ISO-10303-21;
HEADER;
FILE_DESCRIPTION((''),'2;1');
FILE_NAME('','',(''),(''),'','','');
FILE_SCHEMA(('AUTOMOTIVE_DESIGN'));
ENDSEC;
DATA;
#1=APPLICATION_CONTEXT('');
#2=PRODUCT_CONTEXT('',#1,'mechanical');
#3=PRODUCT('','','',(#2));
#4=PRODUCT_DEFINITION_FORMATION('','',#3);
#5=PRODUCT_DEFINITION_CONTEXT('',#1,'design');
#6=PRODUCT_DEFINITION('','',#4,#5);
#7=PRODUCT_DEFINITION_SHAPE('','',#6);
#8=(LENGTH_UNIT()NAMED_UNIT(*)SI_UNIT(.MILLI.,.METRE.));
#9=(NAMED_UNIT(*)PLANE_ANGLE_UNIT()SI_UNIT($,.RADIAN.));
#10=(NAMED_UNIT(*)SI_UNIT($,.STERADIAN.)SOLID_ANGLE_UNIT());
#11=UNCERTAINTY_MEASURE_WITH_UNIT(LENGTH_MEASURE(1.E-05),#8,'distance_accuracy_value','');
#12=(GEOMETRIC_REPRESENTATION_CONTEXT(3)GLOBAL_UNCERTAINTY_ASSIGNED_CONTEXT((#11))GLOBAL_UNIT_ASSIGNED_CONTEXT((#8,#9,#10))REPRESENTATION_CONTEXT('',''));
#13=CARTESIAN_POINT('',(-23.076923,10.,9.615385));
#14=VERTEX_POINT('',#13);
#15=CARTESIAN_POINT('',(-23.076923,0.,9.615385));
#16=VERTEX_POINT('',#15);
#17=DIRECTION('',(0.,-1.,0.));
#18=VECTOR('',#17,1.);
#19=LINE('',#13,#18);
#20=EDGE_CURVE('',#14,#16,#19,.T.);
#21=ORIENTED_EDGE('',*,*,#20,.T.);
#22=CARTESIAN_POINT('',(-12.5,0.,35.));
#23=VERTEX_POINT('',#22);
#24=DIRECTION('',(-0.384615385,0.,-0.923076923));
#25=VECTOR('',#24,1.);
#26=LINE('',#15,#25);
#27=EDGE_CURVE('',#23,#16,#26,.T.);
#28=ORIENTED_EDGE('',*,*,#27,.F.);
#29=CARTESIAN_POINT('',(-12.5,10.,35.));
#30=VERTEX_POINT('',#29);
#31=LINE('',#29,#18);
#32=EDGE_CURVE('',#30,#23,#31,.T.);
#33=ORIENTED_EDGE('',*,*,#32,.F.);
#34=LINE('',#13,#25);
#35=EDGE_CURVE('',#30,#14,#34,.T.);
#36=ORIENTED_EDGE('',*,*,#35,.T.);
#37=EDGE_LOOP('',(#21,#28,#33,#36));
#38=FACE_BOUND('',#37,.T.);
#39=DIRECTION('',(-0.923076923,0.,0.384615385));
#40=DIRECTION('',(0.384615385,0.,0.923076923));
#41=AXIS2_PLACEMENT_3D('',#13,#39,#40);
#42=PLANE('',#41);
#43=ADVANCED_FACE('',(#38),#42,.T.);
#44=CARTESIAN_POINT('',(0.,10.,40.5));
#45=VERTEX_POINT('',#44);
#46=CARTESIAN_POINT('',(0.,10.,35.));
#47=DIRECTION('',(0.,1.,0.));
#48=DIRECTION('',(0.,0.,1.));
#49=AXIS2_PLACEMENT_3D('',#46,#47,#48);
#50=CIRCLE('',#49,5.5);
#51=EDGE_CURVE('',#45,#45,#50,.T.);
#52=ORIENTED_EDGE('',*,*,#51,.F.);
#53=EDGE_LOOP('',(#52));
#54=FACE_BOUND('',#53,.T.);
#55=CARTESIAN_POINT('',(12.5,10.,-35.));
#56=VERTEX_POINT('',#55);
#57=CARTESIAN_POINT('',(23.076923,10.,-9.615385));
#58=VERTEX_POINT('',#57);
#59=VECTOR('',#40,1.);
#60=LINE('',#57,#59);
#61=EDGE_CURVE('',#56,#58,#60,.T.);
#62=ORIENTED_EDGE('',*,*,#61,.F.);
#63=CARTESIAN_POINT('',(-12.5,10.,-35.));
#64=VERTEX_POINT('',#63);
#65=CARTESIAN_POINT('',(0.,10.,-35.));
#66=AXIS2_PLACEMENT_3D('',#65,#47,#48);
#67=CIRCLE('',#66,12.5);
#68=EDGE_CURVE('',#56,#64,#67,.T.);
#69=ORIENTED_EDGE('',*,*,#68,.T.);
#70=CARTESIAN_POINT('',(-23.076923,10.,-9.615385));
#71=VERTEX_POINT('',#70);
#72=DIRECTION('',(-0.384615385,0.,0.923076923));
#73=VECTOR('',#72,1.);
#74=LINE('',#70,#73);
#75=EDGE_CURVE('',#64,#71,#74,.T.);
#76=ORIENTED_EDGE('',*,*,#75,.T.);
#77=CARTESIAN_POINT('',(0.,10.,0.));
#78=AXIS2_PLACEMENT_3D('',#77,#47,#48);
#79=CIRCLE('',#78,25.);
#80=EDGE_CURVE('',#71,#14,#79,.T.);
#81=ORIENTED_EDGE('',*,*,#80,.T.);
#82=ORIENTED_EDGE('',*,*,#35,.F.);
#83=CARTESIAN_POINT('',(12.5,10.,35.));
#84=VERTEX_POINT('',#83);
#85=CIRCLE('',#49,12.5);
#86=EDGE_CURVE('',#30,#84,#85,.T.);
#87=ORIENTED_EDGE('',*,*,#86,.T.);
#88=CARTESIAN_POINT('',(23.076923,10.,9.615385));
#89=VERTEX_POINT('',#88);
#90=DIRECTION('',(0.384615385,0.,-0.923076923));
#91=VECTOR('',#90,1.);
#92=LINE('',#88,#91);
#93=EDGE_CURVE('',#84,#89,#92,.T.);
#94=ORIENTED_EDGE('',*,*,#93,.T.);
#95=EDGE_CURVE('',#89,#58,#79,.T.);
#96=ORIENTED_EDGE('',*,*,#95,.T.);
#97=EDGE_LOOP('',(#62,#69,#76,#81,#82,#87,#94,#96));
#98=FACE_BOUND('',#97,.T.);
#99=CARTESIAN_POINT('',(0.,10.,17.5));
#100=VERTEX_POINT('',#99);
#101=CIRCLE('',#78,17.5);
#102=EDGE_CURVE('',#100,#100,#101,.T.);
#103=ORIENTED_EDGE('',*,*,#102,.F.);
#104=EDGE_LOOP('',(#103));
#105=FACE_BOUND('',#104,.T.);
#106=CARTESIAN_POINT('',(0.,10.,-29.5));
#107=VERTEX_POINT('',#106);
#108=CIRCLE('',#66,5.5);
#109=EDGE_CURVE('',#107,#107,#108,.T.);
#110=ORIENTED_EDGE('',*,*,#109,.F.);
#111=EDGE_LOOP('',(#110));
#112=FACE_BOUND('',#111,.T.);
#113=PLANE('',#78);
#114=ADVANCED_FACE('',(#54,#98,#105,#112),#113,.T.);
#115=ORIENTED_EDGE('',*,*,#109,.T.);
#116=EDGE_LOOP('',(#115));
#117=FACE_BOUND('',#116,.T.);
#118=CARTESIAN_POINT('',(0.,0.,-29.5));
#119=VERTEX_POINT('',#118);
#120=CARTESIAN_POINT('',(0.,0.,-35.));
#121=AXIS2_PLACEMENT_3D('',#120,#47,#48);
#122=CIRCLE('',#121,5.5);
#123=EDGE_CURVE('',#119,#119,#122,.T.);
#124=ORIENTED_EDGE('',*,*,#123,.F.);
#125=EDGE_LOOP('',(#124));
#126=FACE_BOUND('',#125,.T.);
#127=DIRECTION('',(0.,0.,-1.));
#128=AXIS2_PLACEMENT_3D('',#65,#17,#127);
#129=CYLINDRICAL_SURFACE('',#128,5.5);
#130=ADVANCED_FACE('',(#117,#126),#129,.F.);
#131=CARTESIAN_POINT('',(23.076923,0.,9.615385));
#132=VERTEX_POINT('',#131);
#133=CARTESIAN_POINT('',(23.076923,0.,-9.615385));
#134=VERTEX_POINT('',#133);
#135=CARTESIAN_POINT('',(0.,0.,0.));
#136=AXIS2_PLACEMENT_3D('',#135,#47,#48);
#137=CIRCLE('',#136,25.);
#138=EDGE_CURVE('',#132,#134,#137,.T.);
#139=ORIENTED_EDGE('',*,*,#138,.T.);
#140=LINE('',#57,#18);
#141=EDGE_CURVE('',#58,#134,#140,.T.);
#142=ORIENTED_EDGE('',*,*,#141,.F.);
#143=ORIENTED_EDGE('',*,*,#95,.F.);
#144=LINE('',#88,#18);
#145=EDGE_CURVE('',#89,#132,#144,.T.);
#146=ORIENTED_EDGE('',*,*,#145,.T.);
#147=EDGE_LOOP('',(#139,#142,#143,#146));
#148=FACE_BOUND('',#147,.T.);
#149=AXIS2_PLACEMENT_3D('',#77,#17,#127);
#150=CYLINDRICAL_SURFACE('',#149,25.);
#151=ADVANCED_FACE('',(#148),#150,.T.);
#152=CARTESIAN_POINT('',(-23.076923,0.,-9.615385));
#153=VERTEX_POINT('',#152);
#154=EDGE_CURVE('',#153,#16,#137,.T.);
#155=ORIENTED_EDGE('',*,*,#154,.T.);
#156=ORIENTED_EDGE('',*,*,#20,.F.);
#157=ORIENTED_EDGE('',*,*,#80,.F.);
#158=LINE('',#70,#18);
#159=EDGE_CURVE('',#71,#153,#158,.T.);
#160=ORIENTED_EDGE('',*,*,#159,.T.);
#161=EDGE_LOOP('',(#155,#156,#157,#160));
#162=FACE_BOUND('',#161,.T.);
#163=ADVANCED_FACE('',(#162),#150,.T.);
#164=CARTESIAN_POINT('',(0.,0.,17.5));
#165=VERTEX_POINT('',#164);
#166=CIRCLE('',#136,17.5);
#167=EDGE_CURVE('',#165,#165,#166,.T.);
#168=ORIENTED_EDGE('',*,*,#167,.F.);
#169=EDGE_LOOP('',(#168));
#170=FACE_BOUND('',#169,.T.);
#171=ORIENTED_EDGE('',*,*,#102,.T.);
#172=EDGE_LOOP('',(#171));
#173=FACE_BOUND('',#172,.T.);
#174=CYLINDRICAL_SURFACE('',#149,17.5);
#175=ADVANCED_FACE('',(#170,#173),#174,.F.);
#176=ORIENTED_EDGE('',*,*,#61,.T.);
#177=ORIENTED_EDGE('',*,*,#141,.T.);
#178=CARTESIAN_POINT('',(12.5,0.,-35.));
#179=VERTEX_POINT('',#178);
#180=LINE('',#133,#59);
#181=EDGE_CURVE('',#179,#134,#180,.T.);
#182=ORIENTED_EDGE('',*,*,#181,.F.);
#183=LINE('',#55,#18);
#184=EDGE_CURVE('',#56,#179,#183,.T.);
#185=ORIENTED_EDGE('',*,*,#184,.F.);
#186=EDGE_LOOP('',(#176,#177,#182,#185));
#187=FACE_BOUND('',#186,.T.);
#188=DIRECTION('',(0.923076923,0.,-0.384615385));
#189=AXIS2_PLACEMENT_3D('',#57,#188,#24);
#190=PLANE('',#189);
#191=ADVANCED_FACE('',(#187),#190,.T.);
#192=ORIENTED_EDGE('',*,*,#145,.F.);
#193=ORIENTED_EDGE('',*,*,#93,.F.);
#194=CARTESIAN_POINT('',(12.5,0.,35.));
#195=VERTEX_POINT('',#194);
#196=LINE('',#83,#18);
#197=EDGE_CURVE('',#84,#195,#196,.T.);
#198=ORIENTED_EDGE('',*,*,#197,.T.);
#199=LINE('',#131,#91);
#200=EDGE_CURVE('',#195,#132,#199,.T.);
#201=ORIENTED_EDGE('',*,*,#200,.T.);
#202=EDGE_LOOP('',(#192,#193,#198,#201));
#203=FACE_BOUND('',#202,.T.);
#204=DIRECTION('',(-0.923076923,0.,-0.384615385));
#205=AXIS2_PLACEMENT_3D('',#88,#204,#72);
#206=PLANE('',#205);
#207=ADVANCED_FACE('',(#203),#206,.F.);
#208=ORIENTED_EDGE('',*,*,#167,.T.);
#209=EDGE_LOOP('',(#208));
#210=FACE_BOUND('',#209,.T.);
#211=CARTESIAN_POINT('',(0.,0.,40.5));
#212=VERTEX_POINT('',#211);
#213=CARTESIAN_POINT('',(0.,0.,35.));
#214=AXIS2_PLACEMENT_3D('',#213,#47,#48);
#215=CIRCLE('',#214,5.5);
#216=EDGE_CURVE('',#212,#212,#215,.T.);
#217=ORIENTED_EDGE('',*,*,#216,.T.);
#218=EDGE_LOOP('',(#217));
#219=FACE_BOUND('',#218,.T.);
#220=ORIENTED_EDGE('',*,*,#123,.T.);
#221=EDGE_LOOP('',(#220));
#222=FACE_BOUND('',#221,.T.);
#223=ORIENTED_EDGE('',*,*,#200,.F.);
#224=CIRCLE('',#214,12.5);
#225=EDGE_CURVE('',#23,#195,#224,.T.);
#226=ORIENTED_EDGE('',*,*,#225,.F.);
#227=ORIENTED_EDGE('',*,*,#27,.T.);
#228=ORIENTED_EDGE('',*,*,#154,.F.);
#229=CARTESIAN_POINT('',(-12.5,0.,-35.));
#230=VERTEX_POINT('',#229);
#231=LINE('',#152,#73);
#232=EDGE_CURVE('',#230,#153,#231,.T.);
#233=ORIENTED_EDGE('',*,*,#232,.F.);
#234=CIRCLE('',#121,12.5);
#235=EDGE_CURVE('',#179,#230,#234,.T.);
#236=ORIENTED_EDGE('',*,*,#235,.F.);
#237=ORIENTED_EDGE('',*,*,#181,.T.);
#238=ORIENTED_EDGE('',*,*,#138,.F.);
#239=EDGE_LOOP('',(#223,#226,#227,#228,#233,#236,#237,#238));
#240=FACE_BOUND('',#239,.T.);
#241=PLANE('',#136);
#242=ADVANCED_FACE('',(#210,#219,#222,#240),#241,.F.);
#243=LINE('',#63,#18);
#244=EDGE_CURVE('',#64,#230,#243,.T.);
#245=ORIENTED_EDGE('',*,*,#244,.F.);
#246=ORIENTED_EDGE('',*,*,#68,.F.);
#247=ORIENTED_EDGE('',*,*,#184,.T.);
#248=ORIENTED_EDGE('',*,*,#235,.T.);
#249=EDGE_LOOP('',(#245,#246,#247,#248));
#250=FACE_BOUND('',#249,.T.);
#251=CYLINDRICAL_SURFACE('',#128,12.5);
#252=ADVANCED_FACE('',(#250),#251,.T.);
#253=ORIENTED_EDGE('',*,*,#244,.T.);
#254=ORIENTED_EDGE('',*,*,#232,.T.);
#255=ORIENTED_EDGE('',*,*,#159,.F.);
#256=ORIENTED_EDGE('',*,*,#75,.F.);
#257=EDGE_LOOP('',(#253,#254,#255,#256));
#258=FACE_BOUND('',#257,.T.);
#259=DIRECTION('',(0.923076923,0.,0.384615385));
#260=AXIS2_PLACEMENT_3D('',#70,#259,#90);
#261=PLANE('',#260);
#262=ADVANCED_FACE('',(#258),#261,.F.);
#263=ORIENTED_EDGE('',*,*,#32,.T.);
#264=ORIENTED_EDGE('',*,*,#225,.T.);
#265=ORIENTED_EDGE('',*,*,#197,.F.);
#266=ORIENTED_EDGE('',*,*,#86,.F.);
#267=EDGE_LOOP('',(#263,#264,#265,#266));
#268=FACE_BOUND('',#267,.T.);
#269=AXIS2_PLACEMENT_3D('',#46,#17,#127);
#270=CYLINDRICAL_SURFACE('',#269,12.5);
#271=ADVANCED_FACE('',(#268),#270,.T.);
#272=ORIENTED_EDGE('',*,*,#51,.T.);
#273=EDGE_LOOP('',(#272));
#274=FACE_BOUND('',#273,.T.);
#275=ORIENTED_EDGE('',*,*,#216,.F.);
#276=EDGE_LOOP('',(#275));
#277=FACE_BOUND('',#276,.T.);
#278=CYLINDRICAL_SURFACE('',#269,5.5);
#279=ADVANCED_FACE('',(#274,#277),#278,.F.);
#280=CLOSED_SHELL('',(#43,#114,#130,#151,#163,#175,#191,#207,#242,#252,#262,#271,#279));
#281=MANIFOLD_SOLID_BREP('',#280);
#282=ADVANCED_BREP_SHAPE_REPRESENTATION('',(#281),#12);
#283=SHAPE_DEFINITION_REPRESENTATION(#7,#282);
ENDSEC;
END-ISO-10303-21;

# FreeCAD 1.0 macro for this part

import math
import FreeCAD as App
import Part
import Sketcher

doc = App.newDocument("Part")
body = doc.addObject("PartDesign::Body", "Body")

# Sketch on XZ plane
sketch1 = doc.addObject("Sketcher::SketchObject", "Sketch")
body.addObject(sketch1)
sketch1.AttachmentSupport = (doc.XZ_Plane, [""])
sketch1.MapMode = "FlatFace"
sketch1.addGeometry(Part.LineSegment(App.Vector(-12, -35, 0), App.Vector(-23, -10, 0)), False)
sketch1.addGeometry(Part.ArcOfCircle(Part.Circle(App.Vector(0, 0, 0), App.Vector(0, 0, 1), 25), math.radians(157), math.radians(203)), False)
sketch1.addGeometry(Part.LineSegment(App.Vector(-23, 10, 0), App.Vector(-12, 35, 0)), False)
sketch1.addGeometry(Part.ArcOfCircle(Part.Circle(App.Vector(0, 35, 0), App.Vector(0, 0, 1), 12), math.radians(0), math.radians(180)), False)
sketch1.addGeometry(Part.LineSegment(App.Vector(12, 35, 0), App.Vector(23, 10, 0)), False)
sketch1.addGeometry(Part.ArcOfCircle(Part.Circle(App.Vector(0, 0, 0), App.Vector(0, 0, 1), 25), math.radians(-23), math.radians(23)), False)
sketch1.addGeometry(Part.LineSegment(App.Vector(23, -10, 0), App.Vector(12, -35, 0)), False)
sketch1.addGeometry(Part.ArcOfCircle(Part.Circle(App.Vector(0, -35, 0), App.Vector(0, 0, 1), 12), math.radians(180), math.radians(360)), False)
sketch1.addGeometry(Part.Circle(App.Vector(0, 35, 0), App.Vector(0, 0, 1), 6), False)
sketch1.addGeometry(Part.Circle(App.Vector(0, -35, 0), App.Vector(0, 0, 1), 6), False)
sketch1.addGeometry(Part.Circle(App.Vector(0, 0, 0), App.Vector(0, 0, 1), 18), False)
sketch1.addConstraint(Sketcher.Constraint("Tangent", 0, 2, 1, 2))
sketch1.addConstraint(Sketcher.Constraint("Tangent", 1, 1, 2, 1))
sketch1.addConstraint(Sketcher.Constraint("Coincident", 2, 2, 3, 2))
sketch1.addConstraint(Sketcher.Constraint("Coincident", 3, 1, 4, 1))
sketch1.addConstraint(Sketcher.Constraint("Tangent", 4, 2, 5, 2))
sketch1.addConstraint(Sketcher.Constraint("Tangent", 5, 1, 6, 1))
sketch1.addConstraint(Sketcher.Constraint("Coincident", 6, 2, 7, 2))
sketch1.addConstraint(Sketcher.Constraint("Coincident", 7, 1, 0, 1))
sketch1.addConstraint(Sketcher.Constraint("Coincident", 1, 3, -1, 1))
sketch1.addConstraint(Sketcher.Constraint("Coincident", 5, 3, -1, 1))
sketch1.addConstraint(Sketcher.Constraint("Coincident", 10, 3, -1, 1))
sketch1.addConstraint(Sketcher.Constraint("Coincident", 8, 3, 3, 3))
sketch1.addConstraint(Sketcher.Constraint("Coincident", 9, 3, 7, 3))
sketch1.addConstraint(Sketcher.Constraint("Equal", 1, 5))
sketch1.addConstraint(Sketcher.Constraint("Equal", 3, 7))
sketch1.addConstraint(Sketcher.Constraint("Equal", 8, 9))
sketch1.addConstraint(Sketcher.Constraint("Symmetric", 3, 3, 7, 3, -1, 1))
sketch1.addConstraint(Sketcher.Constraint("Symmetric", 2, 2, 3, 1, -2))
sketch1.addConstraint(Sketcher.Constraint("Parallel", 0, 4))
sketch1.addConstraint(Sketcher.Constraint("Parallel", 2, 6))
sketch1.addConstraint(Sketcher.Constraint("Horizontal", 8, 3, 2, 2))
sketch1.addConstraint(Sketcher.Constraint("Diameter", 8, 11.0))
sketch1.addConstraint(Sketcher.Constraint("Diameter", 10, 35.0))
sketch1.addConstraint(Sketcher.Constraint("Radius", 1, 25.0))
sketch1.addConstraint(Sketcher.Constraint("Radius", 3, 12.5))
sketch1.addConstraint(Sketcher.Constraint("DistanceY", -1, 1, 3, 3, 35.0))
pad1 = doc.addObject("PartDesign::Pad", "Pad")
body.addObject(pad1)
pad1.Profile = sketch1
pad1.Length = 10
pad1.Reversed = True

doc.recompute()
